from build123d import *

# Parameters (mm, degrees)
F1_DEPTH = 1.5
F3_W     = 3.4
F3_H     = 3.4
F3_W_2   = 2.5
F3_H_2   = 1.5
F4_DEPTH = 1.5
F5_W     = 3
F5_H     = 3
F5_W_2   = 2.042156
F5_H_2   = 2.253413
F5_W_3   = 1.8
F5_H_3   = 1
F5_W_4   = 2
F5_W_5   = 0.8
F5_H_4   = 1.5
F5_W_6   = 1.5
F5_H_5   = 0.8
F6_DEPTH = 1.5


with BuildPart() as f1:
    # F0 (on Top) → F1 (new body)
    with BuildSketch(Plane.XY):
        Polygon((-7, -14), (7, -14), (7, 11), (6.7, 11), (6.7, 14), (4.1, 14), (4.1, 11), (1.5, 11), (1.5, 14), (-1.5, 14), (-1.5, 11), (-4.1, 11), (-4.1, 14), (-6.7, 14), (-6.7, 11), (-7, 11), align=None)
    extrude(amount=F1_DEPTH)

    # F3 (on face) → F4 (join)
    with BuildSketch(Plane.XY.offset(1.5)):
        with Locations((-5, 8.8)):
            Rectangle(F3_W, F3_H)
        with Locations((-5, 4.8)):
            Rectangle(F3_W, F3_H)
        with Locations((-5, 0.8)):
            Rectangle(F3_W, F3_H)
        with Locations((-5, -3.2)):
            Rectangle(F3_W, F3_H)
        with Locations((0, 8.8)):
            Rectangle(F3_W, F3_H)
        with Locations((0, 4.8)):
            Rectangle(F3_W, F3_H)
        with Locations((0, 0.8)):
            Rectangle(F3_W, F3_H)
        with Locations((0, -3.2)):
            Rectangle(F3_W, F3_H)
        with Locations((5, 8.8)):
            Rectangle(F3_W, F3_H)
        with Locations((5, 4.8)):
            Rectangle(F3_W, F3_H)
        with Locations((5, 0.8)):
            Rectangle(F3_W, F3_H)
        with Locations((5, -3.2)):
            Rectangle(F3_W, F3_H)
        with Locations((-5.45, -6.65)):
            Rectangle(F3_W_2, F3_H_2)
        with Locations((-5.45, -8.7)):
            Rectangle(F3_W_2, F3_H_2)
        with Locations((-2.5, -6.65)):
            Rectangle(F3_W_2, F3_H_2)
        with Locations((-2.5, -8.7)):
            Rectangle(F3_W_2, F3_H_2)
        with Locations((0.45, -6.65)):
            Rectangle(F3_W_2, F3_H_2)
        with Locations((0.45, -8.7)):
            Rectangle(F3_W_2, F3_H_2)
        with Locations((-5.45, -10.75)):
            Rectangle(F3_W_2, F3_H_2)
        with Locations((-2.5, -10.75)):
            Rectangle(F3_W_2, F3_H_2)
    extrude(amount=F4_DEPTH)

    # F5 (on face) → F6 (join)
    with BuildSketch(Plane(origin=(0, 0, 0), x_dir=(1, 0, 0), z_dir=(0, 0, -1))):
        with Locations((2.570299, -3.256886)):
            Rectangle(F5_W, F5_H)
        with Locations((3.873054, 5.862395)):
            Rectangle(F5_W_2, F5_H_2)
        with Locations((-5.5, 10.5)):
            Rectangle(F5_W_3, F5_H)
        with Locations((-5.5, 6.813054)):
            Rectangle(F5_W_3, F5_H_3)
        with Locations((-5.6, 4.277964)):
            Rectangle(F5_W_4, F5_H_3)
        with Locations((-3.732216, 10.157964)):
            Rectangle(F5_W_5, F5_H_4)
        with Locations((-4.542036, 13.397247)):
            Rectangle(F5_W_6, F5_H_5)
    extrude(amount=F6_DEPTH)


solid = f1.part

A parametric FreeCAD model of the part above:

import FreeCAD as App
import Part
import Sketcher
Q = App.Units.Quantity

doc = App.newDocument("Part")
body = doc.addObject("PartDesign::Body", "Body")

sketch1 = body.newObject("Sketcher::SketchObject", "Sketch")
sketch1.AttachmentSupport = (doc.getObject("XY_Plane"), [""])
sketch1.MapMode = "FlatFace"
sketch1.addGeometry([
    Part.LineSegment(App.Vector(-7, -14, 0), App.Vector(7, -14, 0)),
    Part.LineSegment(App.Vector(7, -14, 0), App.Vector(7, 11, 0)),
    Part.LineSegment(App.Vector(7, 11, 0), App.Vector(6.7, 11, 0)),
    Part.LineSegment(App.Vector(6.7, 11, 0), App.Vector(6.7, 14, 0)),
    Part.LineSegment(App.Vector(6.7, 14, 0), App.Vector(4.1, 14, 0)),
    Part.LineSegment(App.Vector(4.1, 14, 0), App.Vector(4.1, 11, 0)),
    Part.LineSegment(App.Vector(4.1, 11, 0), App.Vector(1.5, 11, 0)),
    Part.LineSegment(App.Vector(1.5, 11, 0), App.Vector(1.5, 14, 0)),
    Part.LineSegment(App.Vector(1.5, 14, 0), App.Vector(-1.5, 14, 0)),
    Part.LineSegment(App.Vector(-1.5, 14, 0), App.Vector(-1.5, 11, 0)),
    Part.LineSegment(App.Vector(-1.5, 11, 0), App.Vector(-4.1, 11, 0)),
    Part.LineSegment(App.Vector(-4.1, 11, 0), App.Vector(-4.1, 14, 0)),
    Part.LineSegment(App.Vector(-4.1, 14, 0), App.Vector(-6.7, 14, 0)),
    Part.LineSegment(App.Vector(-6.7, 14, 0), App.Vector(-6.7, 11, 0)),
    Part.LineSegment(App.Vector(-6.7, 11, 0), App.Vector(-7, 11, 0)),
    Part.LineSegment(App.Vector(-7, 11, 0), App.Vector(-7, -14, 0)),
], False)
sketch1.addConstraint([
    Sketcher.Constraint("Coincident", 0, 2, 1, 1),
    Sketcher.Constraint("Coincident", 1, 2, 2, 1),
    Sketcher.Constraint("Coincident", 2, 2, 3, 1),
    Sketcher.Constraint("Coincident", 3, 2, 4, 1),
    Sketcher.Constraint("Coincident", 4, 2, 5, 1),
    Sketcher.Constraint("Coincident", 5, 2, 6, 1),
    Sketcher.Constraint("Coincident", 6, 2, 7, 1),
    Sketcher.Constraint("Coincident", 7, 2, 8, 1),
    Sketcher.Constraint("Coincident", 8, 2, 9, 1),
    Sketcher.Constraint("Coincident", 9, 2, 10, 1),
    Sketcher.Constraint("Coincident", 10, 2, 11, 1),
    Sketcher.Constraint("Coincident", 11, 2, 12, 1),
    Sketcher.Constraint("Coincident", 12, 2, 13, 1),
    Sketcher.Constraint("Coincident", 13, 2, 14, 1),
    Sketcher.Constraint("Coincident", 14, 2, 15, 1),
    Sketcher.Constraint("Coincident", 15, 2, 0, 1),
    Sketcher.Constraint("Horizontal", 0),
    Sketcher.Constraint("Vertical", 1),
    Sketcher.Constraint("Horizontal", 2),
    Sketcher.Constraint("Vertical", 3),
    Sketcher.Constraint("Horizontal", 4),
    Sketcher.Constraint("Vertical", 5),
    Sketcher.Constraint("Horizontal", 6),
    Sketcher.Constraint("Vertical", 7),
    Sketcher.Constraint("Horizontal", 8),
    Sketcher.Constraint("Vertical", 9),
    Sketcher.Constraint("Horizontal", 10),
    Sketcher.Constraint("Vertical", 11),
    Sketcher.Constraint("Horizontal", 12),
    Sketcher.Constraint("Vertical", 13),
    Sketcher.Constraint("Horizontal", 14),
    Sketcher.Constraint("Vertical", 15),
    Sketcher.Constraint("Symmetric", 6, 2, 9, 2, -2),
    Sketcher.Constraint("Symmetric", 4, 2, 11, 2, -2),
    Sketcher.Constraint("Symmetric", 2, 2, 13, 2, -2),
    Sketcher.Constraint("Horizontal", 2, 2, 5, 2),
    Sketcher.Constraint("Horizontal", 4, 2, 7, 2),
    Sketcher.Constraint("Equal", 4, 6),
    Sketcher.Constraint("Equal", 2, 14),
    Sketcher.Constraint("Equal", 8, 3),
    Sketcher.Constraint("DistanceX", 0, 1, 0, 2, Q("14 mm")),
    Sketcher.Constraint("DistanceX", 8, 2, 8, 1, Q("3 mm")),
    Sketcher.Constraint("DistanceY", 1, 1, 1, 2, Q("25 mm")),
    Sketcher.Constraint("DistanceX", 2, 2, 2, 1, Q("0.3 mm")),
    Sketcher.Constraint("DistanceY", 0, 2, -1, 1, Q("14 mm")),
])
pad1 = body.newObject("PartDesign::Pad", "Pad")
pad1.Profile = sketch1
pad1.Length = 1.5

sketch2 = body.newObject("Sketcher::SketchObject", "Sketch001")
sketch2.AttachmentSupport = (doc.getObject("XY_Plane"), [""])
sketch2.MapMode = "FlatFace"
sketch2.AttachmentOffset = App.Placement(App.Vector(0, 0, 1.5), App.Rotation())
sketch2.addGeometry([
    Part.LineSegment(App.Vector(-6.7, 10.5, 0), App.Vector(-6.7, 7.1, 0)),
    Part.LineSegment(App.Vector(-6.7, 7.1, 0), App.Vector(-3.3, 7.1, 0)),
    Part.LineSegment(App.Vector(-3.3, 7.1, 0), App.Vector(-3.3, 10.5, 0)),
    Part.LineSegment(App.Vector(-3.3, 10.5, 0), App.Vector(-6.7, 10.5, 0)),
    Part.LineSegment(App.Vector(-6.7, 6.5, 0), App.Vector(-6.7, 3.1, 0)),
    Part.LineSegment(App.Vector(-6.7, 3.1, 0), App.Vector(-3.3, 3.1, 0)),
    Part.LineSegment(App.Vector(-3.3, 3.1, 0), App.Vector(-3.3, 6.5, 0)),
    Part.LineSegment(App.Vector(-3.3, 6.5, 0), App.Vector(-6.7, 6.5, 0)),
    Part.LineSegment(App.Vector(-6.7, 2.5, 0), App.Vector(-6.7, -0.9, 0)),
    Part.LineSegment(App.Vector(-6.7, -0.9, 0), App.Vector(-3.3, -0.9, 0)),
    Part.LineSegment(App.Vector(-3.3, -0.9, 0), App.Vector(-3.3, 2.5, 0)),
    Part.LineSegment(App.Vector(-3.3, 2.5, 0), App.Vector(-6.7, 2.5, 0)),
    Part.LineSegment(App.Vector(-6.7, -1.5, 0), App.Vector(-6.7, -4.9, 0)),
    Part.LineSegment(App.Vector(-6.7, -4.9, 0), App.Vector(-3.3, -4.9, 0)),
    Part.LineSegment(App.Vector(-3.3, -4.9, 0), App.Vector(-3.3, -1.5, 0)),
    Part.LineSegment(App.Vector(-3.3, -1.5, 0), App.Vector(-6.7, -1.5, 0)),
    Part.LineSegment(App.Vector(-1.7, 10.5, 0), App.Vector(-1.7, 7.1, 0)),
    Part.LineSegment(App.Vector(-1.7, 7.1, 0), App.Vector(1.7, 7.1, 0)),
    Part.LineSegment(App.Vector(1.7, 7.1, 0), App.Vector(1.7, 10.5, 0)),
    Part.LineSegment(App.Vector(1.7, 10.5, 0), App.Vector(-1.7, 10.5, 0)),
    Part.LineSegment(App.Vector(-1.7, 6.5, 0), App.Vector(-1.7, 3.1, 0)),
    Part.LineSegment(App.Vector(-1.7, 3.1, 0), App.Vector(1.7, 3.1, 0)),
    Part.LineSegment(App.Vector(1.7, 3.1, 0), App.Vector(1.7, 6.5, 0)),
    Part.LineSegment(App.Vector(1.7, 6.5, 0), App.Vector(-1.7, 6.5, 0)),
    Part.LineSegment(App.Vector(-1.7, 2.5, 0), App.Vector(-1.7, -0.9, 0)),
    Part.LineSegment(App.Vector(-1.7, -0.9, 0), App.Vector(1.7, -0.9, 0)),
    Part.LineSegment(App.Vector(1.7, -0.9, 0), App.Vector(1.7, 2.5, 0)),
    Part.LineSegment(App.Vector(1.7, 2.5, 0), App.Vector(-1.7, 2.5, 0)),
    Part.LineSegment(App.Vector(-1.7, -1.5, 0), App.Vector(-1.7, -4.9, 0)),
    Part.LineSegment(App.Vector(-1.7, -4.9, 0), App.Vector(1.7, -4.9, 0)),
    Part.LineSegment(App.Vector(1.7, -4.9, 0), App.Vector(1.7, -1.5, 0)),
    Part.LineSegment(App.Vector(1.7, -1.5, 0), App.Vector(-1.7, -1.5, 0)),
    Part.LineSegment(App.Vector(3.3, 10.5, 0), App.Vector(3.3, 7.1, 0)),
    Part.LineSegment(App.Vector(3.3, 7.1, 0), App.Vector(6.7, 7.1, 0)),
    Part.LineSegment(App.Vector(6.7, 7.1, 0), App.Vector(6.7, 10.5, 0)),
    Part.LineSegment(App.Vector(6.7, 10.5, 0), App.Vector(3.3, 10.5, 0)),
    Part.LineSegment(App.Vector(3.3, 6.5, 0), App.Vector(3.3, 3.1, 0)),
    Part.LineSegment(App.Vector(3.3, 3.1, 0), App.Vector(6.7, 3.1, 0)),
    Part.LineSegment(App.Vector(6.7, 3.1, 0), App.Vector(6.7, 6.5, 0)),
    Part.LineSegment(App.Vector(6.7, 6.5, 0), App.Vector(3.3, 6.5, 0)),
    Part.LineSegment(App.Vector(3.3, 2.5, 0), App.Vector(3.3, -0.9, 0)),
    Part.LineSegment(App.Vector(3.3, -0.9, 0), App.Vector(6.7, -0.9, 0)),
    Part.LineSegment(App.Vector(6.7, -0.9, 0), App.Vector(6.7, 2.5, 0)),
    Part.LineSegment(App.Vector(6.7, 2.5, 0), App.Vector(3.3, 2.5, 0)),
    Part.LineSegment(App.Vector(3.3, -1.5, 0), App.Vector(3.3, -4.9, 0)),
    Part.LineSegment(App.Vector(3.3, -4.9, 0), App.Vector(6.7, -4.9, 0)),
    Part.LineSegment(App.Vector(6.7, -4.9, 0), App.Vector(6.7, -1.5, 0)),
    Part.LineSegment(App.Vector(6.7, -1.5, 0), App.Vector(3.3, -1.5, 0)),
    Part.LineSegment(App.Vector(-6.7, -5.9, 0), App.Vector(-6.7, -7.4, 0)),
    Part.LineSegment(App.Vector(-6.7, -7.4, 0), App.Vector(-4.2, -7.4, 0)),
    Part.LineSegment(App.Vector(-4.2, -7.4, 0), App.Vector(-4.2, -5.9, 0)),
    Part.LineSegment(App.Vector(-4.2, -5.9, 0), App.Vector(-6.7, -5.9, 0)),
    Part.LineSegment(App.Vector(-6.7, -8, 0), App.Vector(-6.7, -9.4, 0)),
    Part.LineSegment(App.Vector(-6.7, -9.4, 0), App.Vector(-4.2, -9.4, 0)),
    Part.LineSegment(App.Vector(-4.2, -9.4, 0), App.Vector(-4.2, -8, 0)),
    Part.LineSegment(App.Vector(-4.2, -8, 0), App.Vector(-6.7, -8, 0)),
    Part.LineSegment(App.Vector(-3.8, -5.9, 0), App.Vector(-3.8, -7.4, 0)),
    Part.LineSegment(App.Vector(-3.8, -7.4, 0), App.Vector(-1.2, -7.4, 0)),
    Part.LineSegment(App.Vector(-1.2, -7.4, 0), App.Vector(-1.2, -5.9, 0)),
    Part.LineSegment(App.Vector(-1.2, -5.9, 0), App.Vector(-3.8, -5.9, 0)),
    Part.LineSegment(App.Vector(-3.8, -8, 0), App.Vector(-3.8, -9.4, 0)),
    Part.LineSegment(App.Vector(-3.8, -9.4, 0), App.Vector(-1.2, -9.4, 0)),
    Part.LineSegment(App.Vector(-1.2, -9.4, 0), App.Vector(-1.2, -8, 0)),
    Part.LineSegment(App.Vector(-1.2, -8, 0), App.Vector(-3.8, -8, 0)),
    Part.LineSegment(App.Vector(-0.8, -5.9, 0), App.Vector(-0.8, -7.4, 0)),
    Part.LineSegment(App.Vector(-0.8, -7.4, 0), App.Vector(1.7, -7.4, 0)),
    Part.LineSegment(App.Vector(1.7, -7.4, 0), App.Vector(1.7, -5.9, 0)),
    Part.LineSegment(App.Vector(1.7, -5.9, 0), App.Vector(-0.8, -5.9, 0)),
    Part.LineSegment(App.Vector(-0.8, -8, 0), App.Vector(-0.8, -9.4, 0)),
    Part.LineSegment(App.Vector(-0.8, -9.4, 0), App.Vector(1.7, -9.4, 0)),
    Part.LineSegment(App.Vector(1.7, -9.4, 0), App.Vector(1.7, -8, 0)),
    Part.LineSegment(App.Vector(1.7, -8, 0), App.Vector(-0.8, -8, 0)),
    Part.LineSegment(App.Vector(-6.7, -10, 0), App.Vector(-6.7, -11.5, 0)),
    Part.LineSegment(App.Vector(-6.7, -11.5, 0), App.Vector(-4.2, -11.5, 0)),
    Part.LineSegment(App.Vector(-4.2, -11.5, 0), App.Vector(-4.2, -10, 0)),
    Part.LineSegment(App.Vector(-4.2, -10, 0), App.Vector(-6.7, -10, 0)),
    Part.LineSegment(App.Vector(-3.8, -10, 0), App.Vector(-3.8, -11.5, 0)),
    Part.LineSegment(App.Vector(-3.8, -11.5, 0), App.Vector(-1.2, -11.5, 0)),
    Part.LineSegment(App.Vector(-1.2, -11.5, 0), App.Vector(-1.2, -10, 0)),
    Part.LineSegment(App.Vector(-1.2, -10, 0), App.Vector(-3.8, -10, 0)),
], False)
sketch2.addConstraint([
    Sketcher.Constraint("Coincident", 0, 2, 1, 1),
    Sketcher.Constraint("Coincident", 1, 2, 2, 1),
    Sketcher.Constraint("Coincident", 2, 2, 3, 1),
    Sketcher.Constraint("Coincident", 3, 2, 0, 1),
    Sketcher.Constraint("Coincident", 4, 2, 5, 1),
    Sketcher.Constraint("Coincident", 5, 2, 6, 1),
    Sketcher.Constraint("Coincident", 6, 2, 7, 1),
    Sketcher.Constraint("Coincident", 7, 2, 4, 1),
    Sketcher.Constraint("Coincident", 8, 2, 9, 1),
    Sketcher.Constraint("Coincident", 9, 2, 10, 1),
    Sketcher.Constraint("Coincident", 10, 2, 11, 1),
    Sketcher.Constraint("Coincident", 11, 2, 8, 1),
    Sketcher.Constraint("Coincident", 12, 2, 13, 1),
    Sketcher.Constraint("Coincident", 13, 2, 14, 1),
    Sketcher.Constraint("Coincident", 14, 2, 15, 1),
    Sketcher.Constraint("Coincident", 15, 2, 12, 1),
    Sketcher.Constraint("Coincident", 16, 2, 17, 1),
    Sketcher.Constraint("Coincident", 17, 2, 18, 1),
    Sketcher.Constraint("Coincident", 18, 2, 19, 1),
    Sketcher.Constraint("Coincident", 19, 2, 16, 1),
    Sketcher.Constraint("Coincident", 20, 2, 21, 1),
    Sketcher.Constraint("Coincident", 21, 2, 22, 1),
    Sketcher.Constraint("Coincident", 22, 2, 23, 1),
    Sketcher.Constraint("Coincident", 23, 2, 20, 1),
    Sketcher.Constraint("Coincident", 24, 2, 25, 1),
    Sketcher.Constraint("Coincident", 25, 2, 26, 1),
    Sketcher.Constraint("Coincident", 26, 2, 27, 1),
    Sketcher.Constraint("Coincident", 27, 2, 24, 1),
    Sketcher.Constraint("Coincident", 28, 2, 29, 1),
    Sketcher.Constraint("Coincident", 29, 2, 30, 1),
    Sketcher.Constraint("Coincident", 30, 2, 31, 1),
    Sketcher.Constraint("Coincident", 31, 2, 28, 1),
    Sketcher.Constraint("Coincident", 32, 2, 33, 1),
    Sketcher.Constraint("Coincident", 33, 2, 34, 1),
    Sketcher.Constraint("Coincident", 34, 2, 35, 1),
    Sketcher.Constraint("Coincident", 35, 2, 32, 1),
    Sketcher.Constraint("Coincident", 36, 2, 37, 1),
    Sketcher.Constraint("Coincident", 37, 2, 38, 1),
    Sketcher.Constraint("Coincident", 38, 2, 39, 1),
    Sketcher.Constraint("Coincident", 39, 2, 36, 1),
    Sketcher.Constraint("Coincident", 40, 2, 41, 1),
    Sketcher.Constraint("Coincident", 41, 2, 42, 1),
    Sketcher.Constraint("Coincident", 42, 2, 43, 1),
    Sketcher.Constraint("Coincident", 43, 2, 40, 1),
    Sketcher.Constraint("Coincident", 44, 2, 45, 1),
    Sketcher.Constraint("Coincident", 45, 2, 46, 1),
    Sketcher.Constraint("Coincident", 46, 2, 47, 1),
    Sketcher.Constraint("Coincident", 47, 2, 44, 1),
    Sketcher.Constraint("Coincident", 48, 2, 49, 1),
    Sketcher.Constraint("Coincident", 49, 2, 50, 1),
    Sketcher.Constraint("Coincident", 50, 2, 51, 1),
    Sketcher.Constraint("Coincident", 51, 2, 48, 1),
    Sketcher.Constraint("Coincident", 52, 2, 53, 1),
    Sketcher.Constraint("Coincident", 53, 2, 54, 1),
    Sketcher.Constraint("Coincident", 54, 2, 55, 1),
    Sketcher.Constraint("Coincident", 55, 2, 52, 1),
    Sketcher.Constraint("Coincident", 56, 2, 57, 1),
    Sketcher.Constraint("Coincident", 57, 2, 58, 1),
    Sketcher.Constraint("Coincident", 58, 2, 59, 1),
    Sketcher.Constraint("Coincident", 59, 2, 56, 1),
    Sketcher.Constraint("Coincident", 60, 2, 61, 1),
    Sketcher.Constraint("Coincident", 61, 2, 62, 1),
    Sketcher.Constraint("Coincident", 62, 2, 63, 1),
    Sketcher.Constraint("Coincident", 63, 2, 60, 1),
    Sketcher.Constraint("Coincident", 64, 2, 65, 1),
    Sketcher.Constraint("Coincident", 65, 2, 66, 1),
    Sketcher.Constraint("Coincident", 66, 2, 67, 1),
    Sketcher.Constraint("Coincident", 67, 2, 64, 1),
    Sketcher.Constraint("Coincident", 68, 2, 69, 1),
    Sketcher.Constraint("Coincident", 69, 2, 70, 1),
    Sketcher.Constraint("Coincident", 70, 2, 71, 1),
    Sketcher.Constraint("Coincident", 71, 2, 68, 1),
    Sketcher.Constraint("Coincident", 72, 2, 73, 1),
    Sketcher.Constraint("Coincident", 73, 2, 74, 1),
    Sketcher.Constraint("Coincident", 74, 2, 75, 1),
    Sketcher.Constraint("Coincident", 75, 2, 72, 1),
    Sketcher.Constraint("Coincident", 76, 2, 77, 1),
    Sketcher.Constraint("Coincident", 77, 2, 78, 1),
    Sketcher.Constraint("Coincident", 78, 2, 79, 1),
    Sketcher.Constraint("Coincident", 79, 2, 76, 1),
    Sketcher.Constraint("Vertical", 0),
    Sketcher.Constraint("Horizontal", 1),
    Sketcher.Constraint("Vertical", 2),
    Sketcher.Constraint("Horizontal", 3),
    Sketcher.Constraint("Vertical", 4),
    Sketcher.Constraint("Horizontal", 5),
    Sketcher.Constraint("Vertical", 6),
    Sketcher.Constraint("Horizontal", 7),
    Sketcher.Constraint("Vertical", 8),
    Sketcher.Constraint("Horizontal", 9),
    Sketcher.Constraint("Vertical", 10),
    Sketcher.Constraint("Horizontal", 11),
    Sketcher.Constraint("Vertical", 12),
    Sketcher.Constraint("Horizontal", 13),
    Sketcher.Constraint("Vertical", 14),
    Sketcher.Constraint("Horizontal", 15),
    Sketcher.Constraint("Vertical", 16),
    Sketcher.Constraint("Horizontal", 17),
    Sketcher.Constraint("Vertical", 18),
    Sketcher.Constraint("Horizontal", 19),
    Sketcher.Constraint("Vertical", 20),
    Sketcher.Constraint("Horizontal", 21),
    Sketcher.Constraint("Vertical", 22),
    Sketcher.Constraint("Horizontal", 23),
    Sketcher.Constraint("Vertical", 24),
    Sketcher.Constraint("Horizontal", 25),
    Sketcher.Constraint("Vertical", 26),
    Sketcher.Constraint("Horizontal", 27),
    Sketcher.Constraint("Vertical", 28),
    Sketcher.Constraint("Horizontal", 29),
    Sketcher.Constraint("Vertical", 30),
    Sketcher.Constraint("Horizontal", 31),
    Sketcher.Constraint("Vertical", 32),
    Sketcher.Constraint("Horizontal", 33),
    Sketcher.Constraint("Vertical", 34),
    Sketcher.Constraint("Horizontal", 35),
    Sketcher.Constraint("Vertical", 36),
    Sketcher.Constraint("Horizontal", 37),
    Sketcher.Constraint("Vertical", 38),
    Sketcher.Constraint("Horizontal", 39),
    Sketcher.Constraint("Vertical", 40),
    Sketcher.Constraint("Horizontal", 41),
    Sketcher.Constraint("Vertical", 42),
    Sketcher.Constraint("Horizontal", 43),
    Sketcher.Constraint("Vertical", 44),
    Sketcher.Constraint("Horizontal", 45),
    Sketcher.Constraint("Vertical", 46),
    Sketcher.Constraint("Horizontal", 47),
    Sketcher.Constraint("Vertical", 48),
    Sketcher.Constraint("Horizontal", 49),
    Sketcher.Constraint("Vertical", 50),
    Sketcher.Constraint("Horizontal", 51),
    Sketcher.Constraint("Vertical", 52),
    Sketcher.Constraint("Horizontal", 53),
    Sketcher.Constraint("Vertical", 54),
    Sketcher.Constraint("Horizontal", 55),
    Sketcher.Constraint("Vertical", 56),
    Sketcher.Constraint("Horizontal", 57),
    Sketcher.Constraint("Vertical", 58),
    Sketcher.Constraint("Horizontal", 59),
    Sketcher.Constraint("Vertical", 60),
    Sketcher.Constraint("Horizontal", 61),
    Sketcher.Constraint("Vertical", 62),
    Sketcher.Constraint("Horizontal", 63),
    Sketcher.Constraint("Vertical", 64),
    Sketcher.Constraint("Horizontal", 65),
    Sketcher.Constraint("Vertical", 66),
    Sketcher.Constraint("Horizontal", 67),
    Sketcher.Constraint("Vertical", 68),
    Sketcher.Constraint("Horizontal", 69),
    Sketcher.Constraint("Vertical", 70),
    Sketcher.Constraint("Horizontal", 71),
    Sketcher.Constraint("Vertical", 72),
    Sketcher.Constraint("Horizontal", 73),
    Sketcher.Constraint("Vertical", 74),
    Sketcher.Constraint("Horizontal", 75),
    Sketcher.Constraint("Vertical", 76),
    Sketcher.Constraint("Horizontal", 77),
    Sketcher.Constraint("Vertical", 78),
    Sketcher.Constraint("Horizontal", 79),
    Sketcher.Constraint("Symmetric", 1, 2, 32, 2, -2),
    Sketcher.Constraint("Symmetric", 3, 2, 34, 2, -2),
    Sketcher.Constraint("Symmetric", 5, 2, 36, 2, -2),
    Sketcher.Constraint("Symmetric", 7, 2, 38, 2, -2),
    Sketcher.Constraint("Symmetric", 9, 2, 40, 2, -2),
    Sketcher.Constraint("Symmetric", 11, 2, 42, 2, -2),
    Sketcher.Constraint("Symmetric", 13, 2, 44, 2, -2),
    Sketcher.Constraint("Symmetric", 15, 2, 46, 2, -2),
    Sketcher.Constraint("Horizontal", 1, 2, 16, 2),
    Sketcher.Constraint("Horizontal", 3, 2, 18, 2),
    Sketcher.Constraint("Horizontal", 5, 2, 20, 2),
    Sketcher.Constraint("Horizontal", 7, 2, 22, 2),
    Sketcher.Constraint("Horizontal", 9, 2, 24, 2),
    Sketcher.Constraint("Horizontal", 11, 2, 26, 2),
    Sketcher.Constraint("Horizontal", 13, 2, 28, 2),
    Sketcher.Constraint("Horizontal", 15, 2, 30, 2),
    Sketcher.Constraint("Horizontal", 49, 2, 56, 2),
    Sketcher.Constraint("Horizontal", 51, 2, 58, 2),
    Sketcher.Constraint("Horizontal", 53, 2, 60, 2),
    Sketcher.Constraint("Horizontal", 55, 2, 62, 2),
    Sketcher.Constraint("Horizontal", 57, 2, 64, 2),
    Sketcher.Constraint("Horizontal", 59, 2, 66, 2),
    Sketcher.Constraint("Horizontal", 61, 2, 68, 2),
    Sketcher.Constraint("Horizontal", 63, 2, 70, 2),
    Sketcher.Constraint("Horizontal", 73, 2, 76, 2),
    Sketcher.Constraint("Horizontal", 75, 2, 78, 2),
    Sketcher.Constraint("Vertical", 3, 2, 4, 2),
    Sketcher.Constraint("Vertical", 2, 2, 5, 2),
    Sketcher.Constraint("Vertical", 7, 2, 8, 2),
    Sketcher.Constraint("Vertical", 6, 2, 9, 2),
    Sketcher.Constraint("Vertical", 11, 2, 12, 2),
    Sketcher.Constraint("Vertical", 10, 2, 13, 2),
    Sketcher.Constraint("Vertical", 19, 2, 20, 2),
    Sketcher.Constraint("Vertical", 18, 2, 21, 2),
    Sketcher.Constraint("Vertical", 23, 2, 24, 2),
    Sketcher.Constraint("Vertical", 22, 2, 25, 2),
    Sketcher.Constraint("Vertical", 27, 2, 28, 2),
    Sketcher.Constraint("Vertical", 26, 2, 29, 2),
    Sketcher.Constraint("Vertical", 15, 2, 48, 2),
    Sketcher.Constraint("Vertical", 51, 2, 52, 2),
    Sketcher.Constraint("Vertical", 50, 2, 53, 2),
    Sketcher.Constraint("Vertical", 59, 2, 60, 2),
    Sketcher.Constraint("Vertical", 58, 2, 61, 2),
    Sketcher.Constraint("Vertical", 30, 2, 65, 2),
    Sketcher.Constraint("Vertical", 67, 2, 68, 2),
    Sketcher.Constraint("Vertical", 66, 2, 69, 2),
    Sketcher.Constraint("Vertical", 55, 2, 72, 2),
    Sketcher.Constraint("Vertical", 54, 2, 73, 2),
    Sketcher.Constraint("Vertical", 63, 2, 76, 2),
    Sketcher.Constraint("Vertical", 62, 2, 77, 2),
    Sketcher.Constraint("Equal", 15, 17),
    Sketcher.Constraint("Equal", 55, 57),
    Sketcher.Constraint("Equal", 63, 65),
    Sketcher.Constraint("Equal", 47, 0),
    Sketcher.Constraint("Equal", 2, 4),
    Sketcher.Constraint("Equal", 6, 8),
    Sketcher.Constraint("Equal", 10, 12),
    Sketcher.Constraint("Equal", 50, 52),
    Sketcher.Constraint("Equal", 70, 72),
    Sketcher.Constraint("DistanceX", 1, 1, 1, 2, Q("3.4 mm")),
    Sketcher.Constraint("DistanceX", 49, 1, 49, 2, Q("2.5 mm")),
    Sketcher.Constraint("DistanceY", 48, 2, 48, 1, Q("1.5 mm")),
    Sketcher.Constraint("DistanceY", 74, 2, -1, 1, Q("10 mm")),
    Sketcher.Constraint("DistanceX", 0, 2, -1, 1, Q("6.7 mm")),
    Sketcher.Constraint("DistanceY", -1, 1, 0, 2, Q("7.1 mm")),
    Sketcher.Constraint("DistanceY", -1, 1, 4, 2, Q("3.1 mm")),
    Sketcher.Constraint("DistanceY", 8, 2, -1, 1, Q("0.9 mm")),
    Sketcher.Constraint("DistanceY", 12, 2, -1, 1, Q("4.9 mm")),
    Sketcher.Constraint("DistanceX", 16, 2, -1, 1, Q("1.7 mm")),
    Sketcher.Constraint("DistanceY", 48, 2, -1, 1, Q("7.4 mm")),
    Sketcher.Constraint("DistanceY", 52, 2, -1, 1, Q("9.45 mm")),
    Sketcher.Constraint("DistanceX", 56, 2, -1, 1, Q("3.75 mm")),
])
pad2 = body.newObject("PartDesign::Pad", "Pad001")
pad2.Profile = sketch2
pad2.Length = 1.5

sketch3 = body.newObject("Sketcher::SketchObject", "Sketch002")
sketch3.AttachmentSupport = (doc.getObject("XY_Plane"), [""])
sketch3.MapMode = "FlatFace"
sketch3.addGeometry([
    Part.LineSegment(App.Vector(1.1, 1.8, 0), App.Vector(1.1, 4.8, 0)),
    Part.LineSegment(App.Vector(1.1, 4.8, 0), App.Vector(4.1, 4.8, 0)),
    Part.LineSegment(App.Vector(4.1, 4.8, 0), App.Vector(4.1, 1.8, 0)),
    Part.LineSegment(App.Vector(4.1, 1.8, 0), App.Vector(1.1, 1.8, 0)),
    Part.LineSegment(App.Vector(2.9, -7, 0), App.Vector(2.9, -4.7, 0)),
    Part.LineSegment(App.Vector(2.9, -4.7, 0), App.Vector(4.9, -4.7, 0)),
    Part.LineSegment(App.Vector(4.9, -4.7, 0), App.Vector(4.9, -7, 0)),
    Part.LineSegment(App.Vector(4.9, -7, 0), App.Vector(2.9, -7, 0)),
    Part.LineSegment(App.Vector(-6.4, -12, 0), App.Vector(-6.4, -9, 0)),
    Part.LineSegment(App.Vector(-6.4, -9, 0), App.Vector(-4.6, -9, 0)),
    Part.LineSegment(App.Vector(-4.6, -9, 0), App.Vector(-4.6, -12, 0)),
    Part.LineSegment(App.Vector(-4.6, -12, 0), App.Vector(-6.4, -12, 0)),
    Part.LineSegment(App.Vector(-6.4, -7.3, 0), App.Vector(-6.4, -6.3, 0)),
    Part.LineSegment(App.Vector(-6.4, -6.3, 0), App.Vector(-4.6, -6.3, 0)),
    Part.LineSegment(App.Vector(-4.6, -6.3, 0), App.Vector(-4.6, -7.3, 0)),
    Part.LineSegment(App.Vector(-4.6, -7.3, 0), App.Vector(-6.4, -7.3, 0)),
    Part.LineSegment(App.Vector(-6.6, -4.8, 0), App.Vector(-6.6, -3.8, 0)),
    Part.LineSegment(App.Vector(-6.6, -3.8, 0), App.Vector(-4.6, -3.8, 0)),
    Part.LineSegment(App.Vector(-4.6, -3.8, 0), App.Vector(-4.6, -4.8, 0)),
    Part.LineSegment(App.Vector(-4.6, -4.8, 0), App.Vector(-6.6, -4.8, 0)),
    Part.LineSegment(App.Vector(-4.1, -10.9, 0), App.Vector(-4.1, -9.4, 0)),
    Part.LineSegment(App.Vector(-4.1, -9.4, 0), App.Vector(-3.3, -9.4, 0)),
    Part.LineSegment(App.Vector(-3.3, -9.4, 0), App.Vector(-3.3, -10.9, 0)),
    Part.LineSegment(App.Vector(-3.3, -10.9, 0), App.Vector(-4.1, -10.9, 0)),
    Part.LineSegment(App.Vector(-5.3, -13.8, 0), App.Vector(-5.3, -13, 0)),
    Part.LineSegment(App.Vector(-5.3, -13, 0), App.Vector(-3.8, -13, 0)),
    Part.LineSegment(App.Vector(-3.8, -13, 0), App.Vector(-3.8, -13.8, 0)),
    Part.LineSegment(App.Vector(-3.8, -13.8, 0), App.Vector(-5.3, -13.8, 0)),
], False)
sketch3.addConstraint([
    Sketcher.Constraint("Coincident", 0, 2, 1, 1),
    Sketcher.Constraint("Coincident", 1, 2, 2, 1),
    Sketcher.Constraint("Coincident", 2, 2, 3, 1),
    Sketcher.Constraint("Coincident", 3, 2, 0, 1),
    Sketcher.Constraint("Coincident", 4, 2, 5, 1),
    Sketcher.Constraint("Coincident", 5, 2, 6, 1),
    Sketcher.Constraint("Coincident", 6, 2, 7, 1),
    Sketcher.Constraint("Coincident", 7, 2, 4, 1),
    Sketcher.Constraint("Coincident", 8, 2, 9, 1),
    Sketcher.Constraint("Coincident", 9, 2, 10, 1),
    Sketcher.Constraint("Coincident", 10, 2, 11, 1),
    Sketcher.Constraint("Coincident", 11, 2, 8, 1),
    Sketcher.Constraint("Coincident", 12, 2, 13, 1),
    Sketcher.Constraint("Coincident", 13, 2, 14, 1),
    Sketcher.Constraint("Coincident", 14, 2, 15, 1),
    Sketcher.Constraint("Coincident", 15, 2, 12, 1),
    Sketcher.Constraint("Coincident", 16, 2, 17, 1),
    Sketcher.Constraint("Coincident", 17, 2, 18, 1),
    Sketcher.Constraint("Coincident", 18, 2, 19, 1),
    Sketcher.Constraint("Coincident", 19, 2, 16, 1),
    Sketcher.Constraint("Coincident", 20, 2, 21, 1),
    Sketcher.Constraint("Coincident", 21, 2, 22, 1),
    Sketcher.Constraint("Coincident", 22, 2, 23, 1),
    Sketcher.Constraint("Coincident", 23, 2, 20, 1),
    Sketcher.Constraint("Coincident", 24, 2, 25, 1),
    Sketcher.Constraint("Coincident", 25, 2, 26, 1),
    Sketcher.Constraint("Coincident", 26, 2, 27, 1),
    Sketcher.Constraint("Coincident", 27, 2, 24, 1),
    Sketcher.Constraint("Vertical", 0),
    Sketcher.Constraint("Horizontal", 1),
    Sketcher.Constraint("Vertical", 2),
    Sketcher.Constraint("Horizontal", 3),
    Sketcher.Constraint("Vertical", 4),
    Sketcher.Constraint("Horizontal", 5),
    Sketcher.Constraint("Vertical", 6),
    Sketcher.Constraint("Horizontal", 7),
    Sketcher.Constraint("Vertical", 8),
    Sketcher.Constraint("Horizontal", 9),
    Sketcher.Constraint("Vertical", 10),
    Sketcher.Constraint("Horizontal", 11),
    Sketcher.Constraint("Vertical", 12),
    Sketcher.Constraint("Horizontal", 13),
    Sketcher.Constraint("Vertical", 14),
    Sketcher.Constraint("Horizontal", 15),
    Sketcher.Constraint("Vertical", 16),
    Sketcher.Constraint("Horizontal", 17),
    Sketcher.Constraint("Vertical", 18),
    Sketcher.Constraint("Horizontal", 19),
    Sketcher.Constraint("Vertical", 20),
    Sketcher.Constraint("Horizontal", 21),
    Sketcher.Constraint("Vertical", 22),
    Sketcher.Constraint("Horizontal", 23),
    Sketcher.Constraint("Vertical", 24),
    Sketcher.Constraint("Horizontal", 25),
    Sketcher.Constraint("Vertical", 26),
    Sketcher.Constraint("Horizontal", 27),
    Sketcher.Constraint("Vertical", 11, 2, 12, 2),
    Sketcher.Constraint("Vertical", 10, 2, 13, 2),
    Sketcher.Constraint("Vertical", 14, 2, 17, 2),
    Sketcher.Constraint("Equal", 3, 0),
    Sketcher.Constraint("Equal", 2, 8),
    Sketcher.Constraint("Equal", 14, 16),
    Sketcher.Constraint("Equal", 27, 20),
    Sketcher.Constraint("Equal", 23, 24),
    Sketcher.Constraint("DistanceX", 1, 1, 1, 2, Q("3 mm")),
    Sketcher.Constraint("DistanceX", 17, 1, 17, 2, Q("2 mm")),
    Sketcher.Constraint("DistanceY", 12, 1, 12, 2, Q("1 mm")),
    Sketcher.Constraint("DistanceX", 9, 1, 9, 2, Q("1.8 mm")),
    Sketcher.Constraint("DistanceX", 21, 1, 21, 2, Q("0.8 mm")),
    Sketcher.Constraint("DistanceX", 25, 1, 25, 2, Q("1.5 mm")),
    Sketcher.Constraint("DistanceY", 8, 2, -1, 1, Q("9 mm")),
    Sketcher.Constraint("DistanceX", 8, 2, -1, 1, Q("6.4 mm")),
    Sketcher.Constraint("DistanceX", -1, 1, 0, 2, Q("1.070299 mm")),
    Sketcher.Constraint("DistanceY", 6, 2, -1, 1, Q("6.989102 mm")),
    Sketcher.Constraint("DistanceX", 5, 1, 5, 2, Q("2.042156 mm")),
    Sketcher.Constraint("DistanceY", 4, 1, 4, 2, Q("2.253413 mm")),
    Sketcher.Constraint("DistanceY", 12, 2, 16, 2, Q("2.53509 mm")),
    Sketcher.Constraint("DistanceY", 20, 2, 14, 2, Q("2.09491 mm")),
    Sketcher.Constraint("DistanceX", 24, 2, 23, 2, Q("1.15982 mm")),
    Sketcher.Constraint("DistanceY", -1, 1, 0, 2, Q("4.756886 mm")),
    Sketcher.Constraint("DistanceX", -1, 1, 4, 2, Q("2.851976 mm")),
    Sketcher.Constraint("DistanceY", 12, 2, -1, 1, Q("6.313054 mm")),
    Sketcher.Constraint("DistanceX", 20, 2, -1, 1, Q("4.132216 mm")),
    Sketcher.Constraint("DistanceY", 24, 2, -1, 1, Q("12.997247 mm")),
])
pad3 = body.newObject("PartDesign::Pad", "Pad002")
pad3.Profile = sketch3
pad3.Length = 1.5
pad3.Reversed = True

doc.recompute()
